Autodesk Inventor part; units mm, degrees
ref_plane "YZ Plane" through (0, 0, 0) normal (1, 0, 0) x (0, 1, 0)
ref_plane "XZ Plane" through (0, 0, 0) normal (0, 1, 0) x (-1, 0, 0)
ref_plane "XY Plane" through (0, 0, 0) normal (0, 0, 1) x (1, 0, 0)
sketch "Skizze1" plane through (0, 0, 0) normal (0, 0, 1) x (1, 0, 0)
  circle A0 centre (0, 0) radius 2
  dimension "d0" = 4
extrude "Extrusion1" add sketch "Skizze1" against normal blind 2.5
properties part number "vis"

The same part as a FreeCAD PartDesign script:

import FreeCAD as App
import Part
import Sketcher

V = App.Vector
Q = App.Units.Quantity

doc = App.newDocument("Part")
body = doc.addObject("PartDesign::Body", "Body")

# Sketch on XY plane
sketch1 = body.newObject("Sketcher::SketchObject", "Sketch")
sketch1.AttachmentSupport = (doc.getObject("XY_Plane"), [""])
sketch1.MapMode = "FlatFace"
sketch1.addGeometry(Part.Circle(V(0, 0, 0), V(0, 0, 1), 2), False)
sketch1.addConstraint([
    Sketcher.Constraint("Coincident", 0, 3, -1, 1),
    Sketcher.Constraint("Diameter", 0, Q("4 mm")),
])
pad1 = body.newObject("PartDesign::Pad", "Pad")
pad1.Profile = sketch1
pad1.Length = 2.5
pad1.Reversed = True

doc.recompute()
